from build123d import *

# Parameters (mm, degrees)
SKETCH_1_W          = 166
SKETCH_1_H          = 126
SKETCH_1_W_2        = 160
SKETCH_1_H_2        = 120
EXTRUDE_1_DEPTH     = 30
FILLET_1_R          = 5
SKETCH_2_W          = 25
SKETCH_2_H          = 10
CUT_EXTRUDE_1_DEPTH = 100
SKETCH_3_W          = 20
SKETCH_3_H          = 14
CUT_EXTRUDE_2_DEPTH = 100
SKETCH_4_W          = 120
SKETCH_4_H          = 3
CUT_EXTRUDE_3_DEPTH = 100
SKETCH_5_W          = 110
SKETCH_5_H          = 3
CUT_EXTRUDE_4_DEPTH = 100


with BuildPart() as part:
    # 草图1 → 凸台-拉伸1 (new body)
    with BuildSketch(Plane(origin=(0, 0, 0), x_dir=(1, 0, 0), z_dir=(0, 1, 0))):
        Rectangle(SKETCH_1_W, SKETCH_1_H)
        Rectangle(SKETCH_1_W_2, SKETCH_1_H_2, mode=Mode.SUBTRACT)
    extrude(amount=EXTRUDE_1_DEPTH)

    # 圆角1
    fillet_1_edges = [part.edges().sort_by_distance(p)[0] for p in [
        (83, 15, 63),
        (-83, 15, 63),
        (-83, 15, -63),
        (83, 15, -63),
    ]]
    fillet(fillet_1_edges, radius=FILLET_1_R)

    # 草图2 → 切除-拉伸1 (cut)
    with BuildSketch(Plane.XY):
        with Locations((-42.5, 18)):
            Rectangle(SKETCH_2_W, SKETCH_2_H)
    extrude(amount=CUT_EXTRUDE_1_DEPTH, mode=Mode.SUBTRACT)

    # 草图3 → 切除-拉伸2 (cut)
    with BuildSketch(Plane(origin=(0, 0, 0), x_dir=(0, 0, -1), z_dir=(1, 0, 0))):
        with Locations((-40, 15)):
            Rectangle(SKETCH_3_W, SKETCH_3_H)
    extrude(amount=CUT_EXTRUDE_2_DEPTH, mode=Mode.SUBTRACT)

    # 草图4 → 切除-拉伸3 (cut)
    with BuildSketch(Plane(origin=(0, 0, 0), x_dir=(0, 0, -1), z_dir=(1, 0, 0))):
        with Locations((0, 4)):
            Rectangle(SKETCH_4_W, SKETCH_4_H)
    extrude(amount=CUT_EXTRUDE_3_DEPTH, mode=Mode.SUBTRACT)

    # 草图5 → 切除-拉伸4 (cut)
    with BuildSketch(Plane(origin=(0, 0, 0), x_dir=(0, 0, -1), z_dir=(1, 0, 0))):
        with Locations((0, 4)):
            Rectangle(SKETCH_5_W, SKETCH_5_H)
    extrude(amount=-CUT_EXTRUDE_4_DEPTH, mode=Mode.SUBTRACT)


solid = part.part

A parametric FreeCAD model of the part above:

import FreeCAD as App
import Part
import Sketcher
from FreeCAD import Vector


def edges_at(feature, points):
    """Names of the edges that pass closest to the given points."""
    edges = feature.Shape.Edges
    near = lambda p: min(range(len(edges)), key=lambda i: edges[i].distToShape(Part.Vertex(*p))[0])
    return sorted({f"Edge{near(p) + 1}" for p in points})

doc = App.newDocument("Part")
params = doc.addObject("Spreadsheet::Sheet", "Params")
for row, (alias, value) in enumerate([
    ("sketch1_width", "166 mm"),
    ("sketch1_width2", "160 mm"),
    ("sketch1_height", "126 mm"),
    ("sketch1_height2", "120 mm"),
    ("pad1_length", "30 mm"),
    ("fillet_radius", "5 mm"),
    ("sketch2_width", "25 mm"),
    ("sketch2_height", "10 mm"),
    ("pocket1_length", "100 mm"),
    ("sketch3_width", "14 mm"),
    ("sketch3_height", "20 mm"),
    ("pocket2_length", "100 mm"),
    ("sketch4_width", "3 mm"),
    ("sketch4_height", "120 mm"),
    ("pocket3_length", "100 mm"),
    ("sketch5_width", "3 mm"),
    ("sketch5_height", "110 mm"),
    ("pocket4_length", "100 mm"),
], start=1):
    params.set(f"A{row}", alias)
    params.set(f"B{row}", "=" + value)
    params.setAlias(f"B{row}", alias)

body = doc.addObject("PartDesign::Body", "Body")

# Sketch on XZ plane
sketch1 = body.newObject("Sketcher::SketchObject", "Sketch")
sketch1.AttachmentSupport = (doc.getObject("XZ_Plane"), [""])
sketch1.MapMode = "FlatFace"
sketch1.addGeometry(Part.LineSegment(Vector(-83, -63, 0), Vector(-83, 63, 0)), False)
sketch1.addGeometry(Part.LineSegment(Vector(-83, 63, 0), Vector(83, 63, 0)), False)
sketch1.addGeometry(Part.LineSegment(Vector(83, 63, 0), Vector(83, -63, 0)), False)
sketch1.addGeometry(Part.LineSegment(Vector(83, -63, 0), Vector(-83, -63, 0)), False)
sketch1.addGeometry(Part.LineSegment(Vector(80, 60, 0), Vector(-80, 60, 0)), False)
sketch1.addGeometry(Part.LineSegment(Vector(-80, 60, 0), Vector(-80, -60, 0)), False)
sketch1.addGeometry(Part.LineSegment(Vector(-80, -60, 0), Vector(80, -60, 0)), False)
sketch1.addGeometry(Part.LineSegment(Vector(80, -60, 0), Vector(80, 60, 0)), False)
sketch1.addConstraint(Sketcher.Constraint("Coincident", 0, 2, 1, 1))
sketch1.addConstraint(Sketcher.Constraint("Coincident", 1, 2, 2, 1))
sketch1.addConstraint(Sketcher.Constraint("Coincident", 2, 2, 3, 1))
sketch1.addConstraint(Sketcher.Constraint("Coincident", 3, 2, 0, 1))
sketch1.addConstraint(Sketcher.Constraint("Coincident", 4, 2, 5, 1))
sketch1.addConstraint(Sketcher.Constraint("Coincident", 5, 2, 6, 1))
sketch1.addConstraint(Sketcher.Constraint("Coincident", 6, 2, 7, 1))
sketch1.addConstraint(Sketcher.Constraint("Coincident", 7, 2, 4, 1))
sketch1.addConstraint(Sketcher.Constraint("Vertical", 0))
sketch1.addConstraint(Sketcher.Constraint("Horizontal", 1))
sketch1.addConstraint(Sketcher.Constraint("Vertical", 2))
sketch1.addConstraint(Sketcher.Constraint("Horizontal", 3))
sketch1.addConstraint(Sketcher.Constraint("Horizontal", 4))
sketch1.addConstraint(Sketcher.Constraint("Vertical", 5))
sketch1.addConstraint(Sketcher.Constraint("Horizontal", 6))
sketch1.addConstraint(Sketcher.Constraint("Vertical", 7))
sketch1.addConstraint(Sketcher.Constraint("Symmetric", 0, 2, 2, 2, -1, 1))
sketch1.addConstraint(Sketcher.Constraint("Symmetric", 4, 2, 6, 2, -1, 1))
sketch1.addConstraint(Sketcher.Constraint("DistanceX", 1, 1, 1, 2, 166.0))
sketch1.addConstraint(Sketcher.Constraint("DistanceX", 4, 2, 4, 1, 160.0))
sketch1.addConstraint(Sketcher.Constraint("DistanceY", 0, 1, 0, 2, 126.0))
sketch1.addConstraint(Sketcher.Constraint("DistanceY", 5, 2, 5, 1, 120.0))
sketch1.setExpression("Constraints[18]", "Params.sketch1_width")
sketch1.setExpression("Constraints[19]", "Params.sketch1_width2")
sketch1.setExpression("Constraints[20]", "Params.sketch1_height")
sketch1.setExpression("Constraints[21]", "Params.sketch1_height2")
pad1 = body.newObject("PartDesign::Pad", "Pad")
pad1.Profile = sketch1
pad1.setExpression("Length", "Params.pad1_length")
pad1.Reversed = True
doc.recompute()

fillet = body.newObject("PartDesign::Fillet", "Fillet")
fillet.Base = (pad1, edges_at(pad1, [
    (83, 15, 63),
    (-83, 15, 63),
    (-83, 15, -63),
    (83, 15, -63),
]))
fillet.setExpression("Radius", "Params.fillet_radius")

# Sketch on XY plane
sketch2 = body.newObject("Sketcher::SketchObject", "Sketch001")
sketch2.AttachmentSupport = (doc.getObject("XY_Plane"), [""])
sketch2.MapMode = "FlatFace"
sketch2.addGeometry(Part.LineSegment(Vector(-55, 23, 0), Vector(-55, 13, 0)), False)
sketch2.addGeometry(Part.LineSegment(Vector(-55, 13, 0), Vector(-30, 13, 0)), False)
sketch2.addGeometry(Part.LineSegment(Vector(-30, 13, 0), Vector(-30, 23, 0)), False)
sketch2.addGeometry(Part.LineSegment(Vector(-30, 23, 0), Vector(-55, 23, 0)), False)
sketch2.addConstraint(Sketcher.Constraint("Coincident", 0, 2, 1, 1))
sketch2.addConstraint(Sketcher.Constraint("Coincident", 1, 2, 2, 1))
sketch2.addConstraint(Sketcher.Constraint("Coincident", 2, 2, 3, 1))
sketch2.addConstraint(Sketcher.Constraint("Coincident", 3, 2, 0, 1))
sketch2.addConstraint(Sketcher.Constraint("Vertical", 0))
sketch2.addConstraint(Sketcher.Constraint("Horizontal", 1))
sketch2.addConstraint(Sketcher.Constraint("Vertical", 2))
sketch2.addConstraint(Sketcher.Constraint("Horizontal", 3))
sketch2.addConstraint(Sketcher.Constraint("DistanceX", 1, 1, 1, 2, 25.0))
sketch2.addConstraint(Sketcher.Constraint("DistanceY", 0, 2, 0, 1, 10.0))
sketch2.addConstraint(Sketcher.Constraint("DistanceX", 0, 2, -1, 1, 55.0))
sketch2.addConstraint(Sketcher.Constraint("DistanceY", -1, 1, 0, 2, 13.0))
sketch2.setExpression("Constraints[8]", "Params.sketch2_width")
sketch2.setExpression("Constraints[9]", "Params.sketch2_height")
pocket1 = body.newObject("PartDesign::Pocket", "Pocket")
pocket1.Profile = sketch2
pocket1.setExpression("Length", "Params.pocket1_length")
pocket1.Reversed = True

# Sketch on YZ plane
sketch3 = body.newObject("Sketcher::SketchObject", "Sketch002")
sketch3.AttachmentSupport = (doc.getObject("YZ_Plane"), [""])
sketch3.MapMode = "FlatFace"
sketch3.addGeometry(Part.LineSegment(Vector(22, 50, 0), Vector(8, 50, 0)), False)
sketch3.addGeometry(Part.LineSegment(Vector(8, 50, 0), Vector(8, 30, 0)), False)
sketch3.addGeometry(Part.LineSegment(Vector(8, 30, 0), Vector(22, 30, 0)), False)
sketch3.addGeometry(Part.LineSegment(Vector(22, 30, 0), Vector(22, 50, 0)), False)
sketch3.addConstraint(Sketcher.Constraint("Coincident", 0, 2, 1, 1))
sketch3.addConstraint(Sketcher.Constraint("Coincident", 1, 2, 2, 1))
sketch3.addConstraint(Sketcher.Constraint("Coincident", 2, 2, 3, 1))
sketch3.addConstraint(Sketcher.Constraint("Coincident", 3, 2, 0, 1))
sketch3.addConstraint(Sketcher.Constraint("Horizontal", 0))
sketch3.addConstraint(Sketcher.Constraint("Vertical", 1))
sketch3.addConstraint(Sketcher.Constraint("Horizontal", 2))
sketch3.addConstraint(Sketcher.Constraint("Vertical", 3))
sketch3.addConstraint(Sketcher.Constraint("DistanceX", 0, 2, 0, 1, 14.0))
sketch3.addConstraint(Sketcher.Constraint("DistanceY", 1, 2, 1, 1, 20.0))
sketch3.addConstraint(Sketcher.Constraint("DistanceX", -1, 1, 0, 2, 8.0))
sketch3.addConstraint(Sketcher.Constraint("DistanceY", -1, 1, 0, 2, 50.0))
sketch3.setExpression("Constraints[8]", "Params.sketch3_width")
sketch3.setExpression("Constraints[9]", "Params.sketch3_height")
pocket2 = body.newObject("PartDesign::Pocket", "Pocket001")
pocket2.Profile = sketch3
pocket2.setExpression("Length", "Params.pocket2_length")
pocket2.Reversed = True

# Sketch on YZ plane
sketch4 = body.newObject("Sketcher::SketchObject", "Sketch003")
sketch4.AttachmentSupport = (doc.getObject("YZ_Plane"), [""])
sketch4.MapMode = "FlatFace"
sketch4.addGeometry(Part.LineSegment(Vector(5.5, 60, 0), Vector(2.5, 60, 0)), False)
sketch4.addGeometry(Part.LineSegment(Vector(2.5, 60, 0), Vector(2.5, -60, 0)), False)
sketch4.addGeometry(Part.LineSegment(Vector(2.5, -60, 0), Vector(5.5, -60, 0)), False)
sketch4.addGeometry(Part.LineSegment(Vector(5.5, -60, 0), Vector(5.5, 60, 0)), False)
sketch4.addConstraint(Sketcher.Constraint("Coincident", 0, 2, 1, 1))
sketch4.addConstraint(Sketcher.Constraint("Coincident", 1, 2, 2, 1))
sketch4.addConstraint(Sketcher.Constraint("Coincident", 2, 2, 3, 1))
sketch4.addConstraint(Sketcher.Constraint("Coincident", 3, 2, 0, 1))
sketch4.addConstraint(Sketcher.Constraint("Horizontal", 0))
sketch4.addConstraint(Sketcher.Constraint("Vertical", 1))
sketch4.addConstraint(Sketcher.Constraint("Horizontal", 2))
sketch4.addConstraint(Sketcher.Constraint("Vertical", 3))
sketch4.addConstraint(Sketcher.Constraint("DistanceX", 0, 2, 0, 1, 3.0))
sketch4.addConstraint(Sketcher.Constraint("DistanceY", 1, 2, 1, 1, 120.0))
sketch4.addConstraint(Sketcher.Constraint("DistanceY", -1, 1, 0, 2, 60.0))
sketch4.addConstraint(Sketcher.Constraint("DistanceX", -1, 1, 0, 2, 2.5))
sketch4.setExpression("Constraints[8]", "Params.sketch4_width")
sketch4.setExpression("Constraints[9]", "Params.sketch4_height")
pocket3 = body.newObject("PartDesign::Pocket", "Pocket002")
pocket3.Profile = sketch4
pocket3.setExpression("Length", "Params.pocket3_length")
pocket3.Reversed = True

# Sketch on YZ plane
sketch5 = body.newObject("Sketcher::SketchObject", "Sketch004")
sketch5.AttachmentSupport = (doc.getObject("YZ_Plane"), [""])
sketch5.MapMode = "FlatFace"
sketch5.addGeometry(Part.LineSegment(Vector(5.5, 55, 0), Vector(2.5, 55, 0)), False)
sketch5.addGeometry(Part.LineSegment(Vector(2.5, 55, 0), Vector(2.5, -55, 0)), False)
sketch5.addGeometry(Part.LineSegment(Vector(2.5, -55, 0), Vector(5.5, -55, 0)), False)
sketch5.addGeometry(Part.LineSegment(Vector(5.5, -55, 0), Vector(5.5, 55, 0)), False)
sketch5.addConstraint(Sketcher.Constraint("Coincident", 0, 2, 1, 1))
sketch5.addConstraint(Sketcher.Constraint("Coincident", 1, 2, 2, 1))
sketch5.addConstraint(Sketcher.Constraint("Coincident", 2, 2, 3, 1))
sketch5.addConstraint(Sketcher.Constraint("Coincident", 3, 2, 0, 1))
sketch5.addConstraint(Sketcher.Constraint("Horizontal", 0))
sketch5.addConstraint(Sketcher.Constraint("Vertical", 1))
sketch5.addConstraint(Sketcher.Constraint("Horizontal", 2))
sketch5.addConstraint(Sketcher.Constraint("Vertical", 3))
sketch5.addConstraint(Sketcher.Constraint("DistanceX", 0, 2, 0, 1, 3.0))
sketch5.addConstraint(Sketcher.Constraint("DistanceY", 1, 2, 1, 1, 110.0))
sketch5.addConstraint(Sketcher.Constraint("DistanceY", -1, 1, 0, 2, 55.0))
sketch5.addConstraint(Sketcher.Constraint("DistanceX", -1, 1, 0, 2, 2.5))
sketch5.setExpression("Constraints[8]", "Params.sketch5_width")
sketch5.setExpression("Constraints[9]", "Params.sketch5_height")
pocket4 = body.newObject("PartDesign::Pocket", "Pocket003")
pocket4.Profile = sketch5
pocket4.setExpression("Length", "Params.pocket4_length")

doc.recompute()
